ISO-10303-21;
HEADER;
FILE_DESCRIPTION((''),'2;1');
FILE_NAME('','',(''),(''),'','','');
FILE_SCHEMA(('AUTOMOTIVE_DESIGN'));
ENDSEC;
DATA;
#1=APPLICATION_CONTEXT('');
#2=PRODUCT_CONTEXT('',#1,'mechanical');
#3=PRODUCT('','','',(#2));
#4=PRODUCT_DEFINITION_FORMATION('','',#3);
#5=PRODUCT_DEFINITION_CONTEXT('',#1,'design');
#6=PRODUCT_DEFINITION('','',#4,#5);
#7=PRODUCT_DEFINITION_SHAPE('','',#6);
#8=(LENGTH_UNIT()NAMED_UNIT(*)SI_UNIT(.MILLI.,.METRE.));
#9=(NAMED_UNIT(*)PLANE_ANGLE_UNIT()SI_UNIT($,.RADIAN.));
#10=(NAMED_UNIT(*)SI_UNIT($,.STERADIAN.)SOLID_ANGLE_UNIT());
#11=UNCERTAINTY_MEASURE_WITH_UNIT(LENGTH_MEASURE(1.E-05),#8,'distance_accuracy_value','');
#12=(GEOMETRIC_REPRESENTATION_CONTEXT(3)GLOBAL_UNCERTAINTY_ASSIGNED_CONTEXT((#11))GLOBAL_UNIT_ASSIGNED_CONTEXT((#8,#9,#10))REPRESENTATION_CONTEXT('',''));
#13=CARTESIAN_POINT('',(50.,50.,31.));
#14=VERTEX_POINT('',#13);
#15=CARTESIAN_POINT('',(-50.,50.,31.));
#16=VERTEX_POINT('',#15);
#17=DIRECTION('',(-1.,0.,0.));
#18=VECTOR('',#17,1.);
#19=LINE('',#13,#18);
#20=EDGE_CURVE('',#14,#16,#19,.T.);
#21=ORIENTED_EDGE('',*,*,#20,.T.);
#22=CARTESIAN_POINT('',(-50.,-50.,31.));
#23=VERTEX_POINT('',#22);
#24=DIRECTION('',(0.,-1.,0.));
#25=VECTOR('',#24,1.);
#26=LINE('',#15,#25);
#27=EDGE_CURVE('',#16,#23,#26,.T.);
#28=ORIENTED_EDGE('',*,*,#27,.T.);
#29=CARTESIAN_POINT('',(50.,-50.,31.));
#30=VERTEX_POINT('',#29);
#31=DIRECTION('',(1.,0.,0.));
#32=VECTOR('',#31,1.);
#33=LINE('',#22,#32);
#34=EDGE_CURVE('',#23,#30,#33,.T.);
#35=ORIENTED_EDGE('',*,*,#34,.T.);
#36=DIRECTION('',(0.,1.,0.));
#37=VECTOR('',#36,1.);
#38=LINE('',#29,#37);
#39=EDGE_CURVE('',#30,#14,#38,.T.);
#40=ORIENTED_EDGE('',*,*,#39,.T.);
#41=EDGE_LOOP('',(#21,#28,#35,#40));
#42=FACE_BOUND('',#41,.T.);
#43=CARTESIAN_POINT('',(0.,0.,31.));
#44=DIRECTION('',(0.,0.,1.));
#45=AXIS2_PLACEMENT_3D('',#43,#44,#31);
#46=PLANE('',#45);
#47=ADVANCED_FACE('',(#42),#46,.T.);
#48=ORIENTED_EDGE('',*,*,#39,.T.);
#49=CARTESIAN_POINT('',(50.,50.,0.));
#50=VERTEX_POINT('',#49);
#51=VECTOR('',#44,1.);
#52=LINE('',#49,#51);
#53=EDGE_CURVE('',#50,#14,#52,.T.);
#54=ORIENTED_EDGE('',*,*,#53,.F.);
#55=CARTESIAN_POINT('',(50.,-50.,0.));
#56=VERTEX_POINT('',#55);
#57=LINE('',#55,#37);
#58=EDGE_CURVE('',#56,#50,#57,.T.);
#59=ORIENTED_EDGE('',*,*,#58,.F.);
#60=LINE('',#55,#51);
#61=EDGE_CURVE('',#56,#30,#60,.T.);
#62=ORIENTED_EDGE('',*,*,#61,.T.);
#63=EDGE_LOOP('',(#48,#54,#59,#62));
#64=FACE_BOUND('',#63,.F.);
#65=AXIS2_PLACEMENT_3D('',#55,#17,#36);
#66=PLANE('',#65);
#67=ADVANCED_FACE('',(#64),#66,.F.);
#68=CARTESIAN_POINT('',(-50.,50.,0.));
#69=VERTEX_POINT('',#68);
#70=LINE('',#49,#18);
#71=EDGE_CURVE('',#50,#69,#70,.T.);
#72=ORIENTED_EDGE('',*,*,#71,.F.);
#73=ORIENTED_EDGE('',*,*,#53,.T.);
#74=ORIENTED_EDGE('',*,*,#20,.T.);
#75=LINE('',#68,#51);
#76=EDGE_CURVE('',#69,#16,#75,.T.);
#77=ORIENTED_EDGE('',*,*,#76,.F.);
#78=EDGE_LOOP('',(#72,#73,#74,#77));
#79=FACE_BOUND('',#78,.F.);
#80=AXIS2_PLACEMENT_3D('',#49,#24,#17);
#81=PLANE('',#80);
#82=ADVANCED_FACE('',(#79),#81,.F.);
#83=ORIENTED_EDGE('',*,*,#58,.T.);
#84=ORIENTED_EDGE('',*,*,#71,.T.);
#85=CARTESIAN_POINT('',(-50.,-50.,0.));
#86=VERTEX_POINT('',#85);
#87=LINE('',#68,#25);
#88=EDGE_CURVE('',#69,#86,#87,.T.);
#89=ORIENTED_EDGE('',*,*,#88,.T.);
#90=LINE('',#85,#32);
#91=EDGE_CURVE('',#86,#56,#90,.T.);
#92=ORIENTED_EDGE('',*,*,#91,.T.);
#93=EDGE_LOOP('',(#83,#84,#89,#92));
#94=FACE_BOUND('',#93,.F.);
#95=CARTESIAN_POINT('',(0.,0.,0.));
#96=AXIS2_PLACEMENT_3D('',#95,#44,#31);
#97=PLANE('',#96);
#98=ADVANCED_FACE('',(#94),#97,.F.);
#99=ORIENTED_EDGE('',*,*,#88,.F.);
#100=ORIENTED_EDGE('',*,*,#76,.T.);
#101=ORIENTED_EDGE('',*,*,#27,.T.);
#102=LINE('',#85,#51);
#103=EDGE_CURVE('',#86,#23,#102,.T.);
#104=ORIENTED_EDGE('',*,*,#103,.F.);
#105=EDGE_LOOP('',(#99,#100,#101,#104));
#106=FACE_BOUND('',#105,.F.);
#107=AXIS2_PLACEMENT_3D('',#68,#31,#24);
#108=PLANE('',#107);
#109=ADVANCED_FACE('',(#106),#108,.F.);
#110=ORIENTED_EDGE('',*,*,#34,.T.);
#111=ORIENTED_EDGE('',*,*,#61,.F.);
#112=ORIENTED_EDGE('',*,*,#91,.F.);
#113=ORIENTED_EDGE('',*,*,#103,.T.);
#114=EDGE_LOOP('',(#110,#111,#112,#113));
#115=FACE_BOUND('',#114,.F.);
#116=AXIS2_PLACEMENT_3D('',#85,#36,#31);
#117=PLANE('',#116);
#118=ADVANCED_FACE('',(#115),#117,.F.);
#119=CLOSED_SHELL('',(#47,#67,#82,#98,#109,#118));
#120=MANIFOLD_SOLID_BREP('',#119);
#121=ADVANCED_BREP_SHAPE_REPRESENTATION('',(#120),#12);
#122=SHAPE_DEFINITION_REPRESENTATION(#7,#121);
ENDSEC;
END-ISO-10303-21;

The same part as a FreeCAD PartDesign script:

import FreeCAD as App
import Part
import Sketcher

doc = App.newDocument("Part")
params = doc.addObject("Spreadsheet::Sheet", "Params")
for row, (alias, value) in enumerate([
    ("sketch1_width", "100 mm"),
    ("pad1_length", "31 mm"),
], start=1):
    params.set(f"A{row}", alias)
    params.set(f"B{row}", "=" + value)
    params.setAlias(f"B{row}", alias)

body = doc.addObject("PartDesign::Body", "Body")

# Sketch on XY plane
sketch1 = body.newObject("Sketcher::SketchObject", "Sketch")
sketch1.AttachmentSupport = (doc.getObject("XY_Plane"), [""])
sketch1.MapMode = "FlatFace"
sketch1.addGeometry([
    Part.LineSegment(App.Vector(-50, 50, 0), App.Vector(-50, -50, 0)),
    Part.LineSegment(App.Vector(-50, -50, 0), App.Vector(50, -50, 0)),
    Part.LineSegment(App.Vector(50, -50, 0), App.Vector(50, 50, 0)),
    Part.LineSegment(App.Vector(50, 50, 0), App.Vector(-50, 50, 0)),
], False)
sketch1.addConstraint([
    Sketcher.Constraint("Coincident", 0, 2, 1, 1),
    Sketcher.Constraint("Coincident", 1, 2, 2, 1),
    Sketcher.Constraint("Coincident", 2, 2, 3, 1),
    Sketcher.Constraint("Coincident", 3, 2, 0, 1),
    Sketcher.Constraint("Vertical", 0),
    Sketcher.Constraint("Horizontal", 1),
    Sketcher.Constraint("Vertical", 2),
    Sketcher.Constraint("Horizontal", 3),
    Sketcher.Constraint("Symmetric", 0, 2, 2, 2, -1, 1),
    Sketcher.Constraint("Equal", 3, 0),
    Sketcher.Constraint("DistanceX", 1, 1, 1, 2, 100.0),
])
sketch1.setExpression("Constraints[10]", "Params.sketch1_width")
pad1 = body.newObject("PartDesign::Pad", "Pad")
pad1.Profile = sketch1
pad1.setExpression("Length", "Params.pad1_length")

doc.recompute()
